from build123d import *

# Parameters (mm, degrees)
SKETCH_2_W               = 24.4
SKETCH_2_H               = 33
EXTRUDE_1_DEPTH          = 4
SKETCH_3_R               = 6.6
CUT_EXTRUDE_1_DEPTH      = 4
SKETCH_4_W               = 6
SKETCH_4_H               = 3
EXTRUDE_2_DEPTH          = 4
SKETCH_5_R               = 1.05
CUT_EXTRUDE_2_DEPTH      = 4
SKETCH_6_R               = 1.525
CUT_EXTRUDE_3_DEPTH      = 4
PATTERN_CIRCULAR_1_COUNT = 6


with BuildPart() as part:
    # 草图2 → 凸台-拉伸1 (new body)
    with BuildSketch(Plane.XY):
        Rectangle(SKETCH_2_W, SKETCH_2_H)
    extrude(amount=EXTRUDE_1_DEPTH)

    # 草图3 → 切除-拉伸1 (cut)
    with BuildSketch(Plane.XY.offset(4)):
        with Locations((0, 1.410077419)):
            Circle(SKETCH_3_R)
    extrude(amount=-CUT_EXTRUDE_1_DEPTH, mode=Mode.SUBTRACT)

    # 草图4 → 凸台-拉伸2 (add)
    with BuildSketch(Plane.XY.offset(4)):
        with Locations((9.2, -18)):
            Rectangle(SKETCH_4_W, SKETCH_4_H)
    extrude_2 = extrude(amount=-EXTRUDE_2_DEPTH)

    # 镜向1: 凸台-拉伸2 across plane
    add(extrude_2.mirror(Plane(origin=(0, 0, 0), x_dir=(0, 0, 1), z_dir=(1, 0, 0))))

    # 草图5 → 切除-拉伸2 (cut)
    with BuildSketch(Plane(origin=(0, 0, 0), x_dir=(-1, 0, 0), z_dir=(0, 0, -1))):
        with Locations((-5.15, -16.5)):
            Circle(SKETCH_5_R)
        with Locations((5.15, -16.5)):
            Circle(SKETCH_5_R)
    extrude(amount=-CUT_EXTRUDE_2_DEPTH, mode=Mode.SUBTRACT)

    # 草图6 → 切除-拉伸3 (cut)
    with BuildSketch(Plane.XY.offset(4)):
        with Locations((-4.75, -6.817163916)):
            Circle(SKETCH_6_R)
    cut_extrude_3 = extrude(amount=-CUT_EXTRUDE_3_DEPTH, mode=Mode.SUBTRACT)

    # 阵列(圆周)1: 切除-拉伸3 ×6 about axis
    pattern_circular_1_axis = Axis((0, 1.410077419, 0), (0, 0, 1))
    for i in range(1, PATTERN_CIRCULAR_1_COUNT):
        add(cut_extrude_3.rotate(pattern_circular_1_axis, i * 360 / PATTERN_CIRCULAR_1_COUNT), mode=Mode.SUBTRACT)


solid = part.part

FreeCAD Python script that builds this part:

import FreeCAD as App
import Part
import Sketcher

V = App.Vector
Q = App.Units.Quantity


def add_polygon(sketch, points):
    """Adds a closed chain of lines whose ends are joined by coincident constraints."""
    first, n = sketch.GeometryCount, len(points)
    for a, b in zip(points, points[1:] + points[:1]):
        sketch.addGeometry(Part.LineSegment(App.Vector(*a, 0), App.Vector(*b, 0)), False)
    for i in range(n):
        sketch.addConstraint(Sketcher.Constraint("Coincident", first + i, 2, first + (i + 1) % n, 1))

doc = App.newDocument("Part")
params = doc.addObject("Spreadsheet::Sheet", "Params")
for row, (alias, value) in enumerate([
    ("sketch1_height", "33 mm"),
    ("sketch1_width", "24.4 mm"),
    ("pad1_length", "4 mm"),
    ("sketch2_diameter", "13.2 mm"),
    ("pocket1_length", "4 mm"),
    ("sketch3_width", "6 mm"),
    ("sketch3_height", "3 mm"),
    ("pad2_length", "4 mm"),
    ("sketch4_diameter", "2.1 mm"),
    ("pocket2_length", "4 mm"),
    ("sketch5_diameter", "3.05 mm"),
    ("pocket3_length", "4 mm"),
], start=1):
    params.set(f"A{row}", alias)
    params.set(f"B{row}", "=" + value)
    params.setAlias(f"B{row}", alias)

body = doc.addObject("PartDesign::Body", "Body")

sketch1 = doc.addObject("Sketcher::SketchObject", "Sketch")
body.addObject(sketch1)
sketch1.AttachmentSupport = (doc.XY_Plane, [""])
sketch1.MapMode = "FlatFace"
add_polygon(sketch1, [(-12, 16), (-12, -16), (12, -16), (12, 16)])
sketch1.addConstraint([
    Sketcher.Constraint("Vertical", 0),
    Sketcher.Constraint("Horizontal", 1),
    Sketcher.Constraint("Vertical", 2),
    Sketcher.Constraint("Horizontal", 3),
    Sketcher.Constraint("Symmetric", 0, 2, 2, 2, -1, 1),
    Sketcher.Constraint("DistanceY", 0, 2, 0, 1, Q("33 mm")),
    Sketcher.Constraint("DistanceX", 1, 1, 1, 2, Q("24.4 mm")),
])
sketch1.setExpression("Constraints[9]", "Params.sketch1_height")
sketch1.setExpression("Constraints[10]", "Params.sketch1_width")
pad1 = doc.addObject("PartDesign::Pad", "Pad")
body.addObject(pad1)
pad1.Profile = sketch1
pad1.setExpression("Length", "Params.pad1_length")

sketch2 = doc.addObject("Sketcher::SketchObject", "Sketch001")
body.addObject(sketch2)
sketch2.AttachmentSupport = (doc.XY_Plane, [""])
sketch2.MapMode = "FlatFace"
sketch2.AttachmentOffset = App.Placement(V(0, 0, 4), App.Rotation())
sketch2.addGeometry(Part.Circle(V(0, 1, 0), V(0, 0, 1), 7), False)
sketch2.addConstraint([
    Sketcher.Constraint("PointOnObject", 0, 3, -2),
    Sketcher.Constraint("Diameter", 0, Q("13.2 mm")),
    Sketcher.Constraint("DistanceY", -1, 1, 0, 3, Q("1.410077 mm")),
])
sketch2.setExpression("Constraints[1]", "Params.sketch2_diameter")
pocket1 = doc.addObject("PartDesign::Pocket", "Pocket")
body.addObject(pocket1)
pocket1.Profile = sketch2
pocket1.setExpression("Length", "Params.pocket1_length")

sketch3 = doc.addObject("Sketcher::SketchObject", "Sketch002")
body.addObject(sketch3)
sketch3.AttachmentSupport = (doc.XY_Plane, [""])
sketch3.MapMode = "FlatFace"
sketch3.AttachmentOffset = App.Placement(V(0, 0, 4), App.Rotation())
add_polygon(sketch3, [(6.2, -16.5), (6.2, -19.5), (12.2, -19.5), (12.2, -16.5)])
sketch3.addConstraint([
    Sketcher.Constraint("Vertical", 0),
    Sketcher.Constraint("Horizontal", 1),
    Sketcher.Constraint("Vertical", 2),
    Sketcher.Constraint("Horizontal", 3),
    Sketcher.Constraint("DistanceX", 1, 1, 1, 2, Q("6 mm")),
    Sketcher.Constraint("DistanceY", 0, 2, 0, 1, Q("3 mm")),
    Sketcher.Constraint("DistanceX", -1, 1, 0, 2, Q("6.2 mm")),
    Sketcher.Constraint("DistanceY", 0, 2, -1, 1, Q("19.5 mm")),
])
sketch3.setExpression("Constraints[8]", "Params.sketch3_width")
sketch3.setExpression("Constraints[9]", "Params.sketch3_height")
pad2 = doc.addObject("PartDesign::Pad", "Pad001")
body.addObject(pad2)
pad2.Profile = sketch3
pad2.setExpression("Length", "Params.pad2_length")
pad2.Reversed = True
doc.recompute()

mirrored = doc.addObject("PartDesign::Mirrored", "Mirrored")
body.addObject(mirrored)
mirrored.Originals = [pad2]
mirrored.MirrorPlane = (doc.YZ_Plane, [""])
body.Tip = mirrored

sketch4 = doc.addObject("Sketcher::SketchObject", "Sketch003")
body.addObject(sketch4)
sketch4.AttachmentSupport = (doc.XY_Plane, [""])
sketch4.MapMode = "FlatFace"
sketch4.addGeometry([
    Part.Circle(V(5.2, -16.5, 0), V(0, 0, 1), 1.1),
    Part.Circle(V(-5.2, -16.5, 0), V(0, 0, 1), 1.1),
], False)
sketch4.addConstraint([
    Sketcher.Constraint("Equal", 0, 1),
    Sketcher.Constraint("Symmetric", 0, 3, 1, 3, -2),
    Sketcher.Constraint("Diameter", 0, Q("2.1 mm")),
    Sketcher.Constraint("DistanceY", 0, 3, -1, 1, Q("16.5 mm")),
    Sketcher.Constraint("DistanceX", 1, 3, 0, 3, Q("10.3 mm")),
])
sketch4.setExpression("Constraints[2]", "Params.sketch4_diameter")
pocket2 = doc.addObject("PartDesign::Pocket", "Pocket001")
body.addObject(pocket2)
pocket2.Profile = sketch4
pocket2.setExpression("Length", "Params.pocket2_length")
pocket2.Reversed = True

sketch5 = doc.addObject("Sketcher::SketchObject", "Sketch004")
body.addObject(sketch5)
sketch5.AttachmentSupport = (doc.XY_Plane, [""])
sketch5.MapMode = "FlatFace"
sketch5.AttachmentOffset = App.Placement(V(0, 0, 4), App.Rotation())
sketch5.addGeometry(Part.Circle(V(-4.8, -6.8, 0), V(0, 0, 1), 1.5), False)
sketch5.addConstraint([
    Sketcher.Constraint("Diameter", 0, Q("3.05 mm")),
    Sketcher.Constraint("DistanceX", 0, 3, -1, 1, Q("4.75 mm")),
    Sketcher.Constraint("DistanceY", 0, 3, -1, 1, Q("6.817164 mm")),
])
sketch5.setExpression("Constraints[0]", "Params.sketch5_diameter")
pocket3 = doc.addObject("PartDesign::Pocket", "Pocket002")
body.addObject(pocket3)
pocket3.Profile = sketch5
pocket3.setExpression("Length", "Params.pocket3_length")
doc.recompute()

datumline = doc.addObject("PartDesign::Line", "DatumLine")
body.addObject(datumline)
datumline.Placement = App.Placement(V(0, 1.410077, 0), App.Rotation(V(0, 0, 1), V(0, 0, 1)))
polarpattern = doc.addObject("PartDesign::PolarPattern", "PolarPattern")
body.addObject(polarpattern)
polarpattern.Originals = [pocket3]
polarpattern.Axis = (datumline, [""])
polarpattern.Angle = 360
polarpattern.Occurrences = 6
body.Tip = polarpattern

doc.recompute()
